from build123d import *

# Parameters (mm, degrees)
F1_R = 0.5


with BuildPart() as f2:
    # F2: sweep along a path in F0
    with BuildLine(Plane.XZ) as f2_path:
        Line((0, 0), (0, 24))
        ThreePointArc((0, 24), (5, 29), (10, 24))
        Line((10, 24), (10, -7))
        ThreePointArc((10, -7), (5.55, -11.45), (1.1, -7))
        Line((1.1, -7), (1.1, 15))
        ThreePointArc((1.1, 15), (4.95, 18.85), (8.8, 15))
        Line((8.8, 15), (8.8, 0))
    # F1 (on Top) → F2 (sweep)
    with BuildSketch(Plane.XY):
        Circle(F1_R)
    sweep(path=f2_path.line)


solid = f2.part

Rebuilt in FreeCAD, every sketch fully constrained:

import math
import FreeCAD as App
import Part
import Sketcher

doc = App.newDocument("Part")
params = doc.addObject("Spreadsheet::Sheet", "Params")
for row, (alias, value) in enumerate([
    ("sketch1_diameter", "1 mm"),
    ("sketch2_radius", "5 mm"),
    ("sketch2_height", "24 mm"),
    ("sketch2_height2", "31 mm"),
    ("sketch2_height3", "22 mm"),
    ("sketch2_radius2", "4.45 mm"),
], start=1):
    params.set(f"A{row}", alias)
    params.set(f"B{row}", "=" + value)
    params.setAlias(f"B{row}", alias)

body = doc.addObject("PartDesign::Body", "Body")

# Sketch on XY plane
sketch1 = body.newObject("Sketcher::SketchObject", "Sketch")
sketch1.AttachmentSupport = (doc.getObject("XY_Plane"), [""])
sketch1.MapMode = "FlatFace"
sketch1.addGeometry(Part.Circle(App.Vector(0, 0, 0), App.Vector(0, 0, 1), 0.5), False)
sketch1.addConstraint([
    Sketcher.Constraint("Coincident", 0, 3, -1, 1),
    Sketcher.Constraint("Diameter", 0, 1.0),
])
sketch1.setExpression("Constraints[1]", "Params.sketch1_diameter")

# Sketch on XZ plane
sketch2 = body.newObject("Sketcher::SketchObject", "Sketch001")
sketch2.AttachmentSupport = (doc.getObject("XZ_Plane"), [""])
sketch2.MapMode = "FlatFace"
sketch2.addGeometry([
    Part.LineSegment(App.Vector(0, 0, 0), App.Vector(0, 24, 0)),  # 0
    Part.ArcOfCircle(Part.Circle(App.Vector(5, 24, 0), App.Vector(0, 0, 1), 5), math.radians(0), math.radians(180)),  # 1
    Part.LineSegment(App.Vector(10, 24, 0), App.Vector(10, -7, 0)),  # 2
    Part.ArcOfCircle(Part.Circle(App.Vector(5.55, -7, 0), App.Vector(0, 0, 1), 4.45), math.radians(180), math.radians(360)),  # 3
    Part.LineSegment(App.Vector(1.1, -7, 0), App.Vector(1.1, 15, 0)),  # 4
    Part.ArcOfCircle(Part.Circle(App.Vector(4.95, 15, 0), App.Vector(0, 0, 1), 3.85), math.radians(0), math.radians(180)),  # 5
    Part.LineSegment(App.Vector(8.8, 15, 0), App.Vector(8.8, 0, 0)),  # 6
], False)
sketch2.addConstraint([
    Sketcher.Constraint("Tangent", 0, 2, 1, 2),
    Sketcher.Constraint("Tangent", 1, 1, 2, 1),
    Sketcher.Constraint("Tangent", 2, 2, 3, 2),
    Sketcher.Constraint("Tangent", 3, 1, 4, 1),
    Sketcher.Constraint("Tangent", 4, 2, 5, 2),
    Sketcher.Constraint("Tangent", 5, 1, 6, 1),
    Sketcher.Constraint("Vertical", 0),
    Sketcher.Constraint("Vertical", 2),
    Sketcher.Constraint("Vertical", 4),
    Sketcher.Constraint("Vertical", 6),
    Sketcher.Constraint("Coincident", 0, 1, -1, 1),
    Sketcher.Constraint("PointOnObject", 6, 2, -1),
    Sketcher.Constraint("Radius", 1, 5.0),
    Sketcher.Constraint("DistanceY", 0, 1, 0, 2, 24.0),
    Sketcher.Constraint("DistanceY", 2, 2, 2, 1, 31.0),
    Sketcher.Constraint("DistanceY", 4, 1, 4, 2, 22.0),
    Sketcher.Constraint("Radius", 3, 4.45),
    Sketcher.Constraint("Radius", 5, 3.85),
])
sketch2.setExpression("Constraints[12]", "Params.sketch2_radius")
sketch2.setExpression("Constraints[13]", "Params.sketch2_height")
sketch2.setExpression("Constraints[14]", "Params.sketch2_height2")
sketch2.setExpression("Constraints[15]", "Params.sketch2_height3")
sketch2.setExpression("Constraints[16]", "Params.sketch2_radius2")
doc.recompute()

additivepipe = body.newObject("PartDesign::AdditivePipe", "AdditivePipe")
additivepipe.Profile = sketch1
additivepipe.Spine = (sketch2, ["Edge1", "Edge2", "Edge3", "Edge4", "Edge5", "Edge6", "Edge7"])

doc.recompute()
